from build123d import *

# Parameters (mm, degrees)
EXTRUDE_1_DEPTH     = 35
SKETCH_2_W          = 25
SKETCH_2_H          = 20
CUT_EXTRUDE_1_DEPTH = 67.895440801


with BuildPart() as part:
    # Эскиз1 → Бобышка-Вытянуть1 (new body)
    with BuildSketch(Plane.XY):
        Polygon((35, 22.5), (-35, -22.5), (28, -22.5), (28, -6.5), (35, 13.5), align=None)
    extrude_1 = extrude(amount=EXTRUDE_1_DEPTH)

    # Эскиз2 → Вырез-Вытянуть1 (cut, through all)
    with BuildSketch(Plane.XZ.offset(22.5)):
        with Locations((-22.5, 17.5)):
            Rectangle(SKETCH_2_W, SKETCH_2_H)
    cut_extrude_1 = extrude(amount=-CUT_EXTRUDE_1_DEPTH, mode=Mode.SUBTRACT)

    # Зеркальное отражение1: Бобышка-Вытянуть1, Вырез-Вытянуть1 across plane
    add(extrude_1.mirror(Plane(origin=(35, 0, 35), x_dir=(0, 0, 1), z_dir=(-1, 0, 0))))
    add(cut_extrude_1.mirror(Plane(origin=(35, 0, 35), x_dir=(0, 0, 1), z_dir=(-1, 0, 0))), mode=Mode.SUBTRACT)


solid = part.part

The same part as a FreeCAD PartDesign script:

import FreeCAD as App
import Part
import Sketcher

V = App.Vector
Q = App.Units.Quantity

doc = App.newDocument("Part")
body = doc.addObject("PartDesign::Body", "Body")

sketch1 = body.newObject("Sketcher::SketchObject", "Sketch")
sketch1.AttachmentSupport = (doc.getObject("XY_Plane"), [""])
sketch1.MapMode = "FlatFace"
sketch1.addGeometry(Part.LineSegment(V(35, 22, 0), V(-35, -22, 0)), False)
sketch1.addGeometry(Part.LineSegment(V(-35, -22, 0), V(28, -22, 0)), False)
sketch1.addGeometry(Part.LineSegment(V(28, -22, 0), V(28, -6, 0)), False)
sketch1.addGeometry(Part.LineSegment(V(28, -6, 0), V(35, 14, 0)), False)
sketch1.addGeometry(Part.LineSegment(V(35, 14, 0), V(35, 22, 0)), False)
sketch1.addConstraint(Sketcher.Constraint("Coincident", 0, 2, 1, 1))
sketch1.addConstraint(Sketcher.Constraint("Coincident", 1, 2, 2, 1))
sketch1.addConstraint(Sketcher.Constraint("Coincident", 2, 2, 3, 1))
sketch1.addConstraint(Sketcher.Constraint("Coincident", 3, 2, 4, 1))
sketch1.addConstraint(Sketcher.Constraint("Coincident", 4, 2, 0, 1))
sketch1.addConstraint(Sketcher.Constraint("Horizontal", 1))
sketch1.addConstraint(Sketcher.Constraint("Vertical", 2))
sketch1.addConstraint(Sketcher.Constraint("Vertical", 4))
sketch1.addConstraint(Sketcher.Constraint("Symmetric", 0, 2, 4, 2, -1, 1))
sketch1.addConstraint(Sketcher.Constraint("DistanceX", 1, 1, 1, 2, Q("63 mm")))
sketch1.addConstraint(Sketcher.Constraint("DistanceY", 2, 1, 2, 2, Q("16 mm")))
sketch1.addConstraint(Sketcher.Constraint("DistanceY", 4, 1, 4, 2, Q("9 mm")))
sketch1.addConstraint(Sketcher.Constraint("DistanceX", 0, 2, -1, 1, Q("35 mm")))
sketch1.addConstraint(Sketcher.Constraint("DistanceY", 2, 2, 3, 2, Q("20 mm")))
pad1 = body.newObject("PartDesign::Pad", "Pad")
pad1.Profile = sketch1
pad1.Length = 35

sketch2 = body.newObject("Sketcher::SketchObject", "Sketch001")
sketch2.AttachmentSupport = (doc.getObject("XZ_Plane"), [""])
sketch2.MapMode = "FlatFace"
sketch2.AttachmentOffset = App.Placement(V(0, 0, 22.5), App.Rotation())
sketch2.addGeometry(Part.LineSegment(V(-35, 28, 0), V(-35, 8, 0)), False)
sketch2.addGeometry(Part.LineSegment(V(-35, 8, 0), V(-10, 8, 0)), False)
sketch2.addGeometry(Part.LineSegment(V(-10, 8, 0), V(-10, 28, 0)), False)
sketch2.addGeometry(Part.LineSegment(V(-10, 28, 0), V(-35, 28, 0)), False)
sketch2.addConstraint(Sketcher.Constraint("Coincident", 0, 2, 1, 1))
sketch2.addConstraint(Sketcher.Constraint("Coincident", 1, 2, 2, 1))
sketch2.addConstraint(Sketcher.Constraint("Coincident", 2, 2, 3, 1))
sketch2.addConstraint(Sketcher.Constraint("Coincident", 3, 2, 0, 1))
sketch2.addConstraint(Sketcher.Constraint("Vertical", 0))
sketch2.addConstraint(Sketcher.Constraint("Horizontal", 1))
sketch2.addConstraint(Sketcher.Constraint("Vertical", 2))
sketch2.addConstraint(Sketcher.Constraint("Horizontal", 3))
sketch2.addConstraint(Sketcher.Constraint("DistanceX", 1, 1, 1, 2, Q("25 mm")))
sketch2.addConstraint(Sketcher.Constraint("DistanceY", 0, 2, 0, 1, Q("20 mm")))
sketch2.addConstraint(Sketcher.Constraint("DistanceX", 0, 2, -1, 1, Q("35 mm")))
sketch2.addConstraint(Sketcher.Constraint("DistanceY", -1, 1, 0, 2, Q("7.5 mm")))
pocket1 = body.newObject("PartDesign::Pocket", "Pocket")
pocket1.Profile = sketch2
pocket1.Type = "ThroughAll"
doc.recompute()

datumplane = body.newObject("PartDesign::Plane", "DatumPlane")
datumplane.AttachmentSupport = (doc.getObject("YZ_Plane"), [""])
datumplane.MapMode = "FlatFace"
datumplane.AttachmentOffset = App.Placement(V(0, 0, 35), App.Rotation())
mirrored = body.newObject("PartDesign::Mirrored", "Mirrored")
mirrored.Originals = [pad1, pocket1]
mirrored.MirrorPlane = (datumplane, [""])
body.Tip = mirrored

doc.recompute()
